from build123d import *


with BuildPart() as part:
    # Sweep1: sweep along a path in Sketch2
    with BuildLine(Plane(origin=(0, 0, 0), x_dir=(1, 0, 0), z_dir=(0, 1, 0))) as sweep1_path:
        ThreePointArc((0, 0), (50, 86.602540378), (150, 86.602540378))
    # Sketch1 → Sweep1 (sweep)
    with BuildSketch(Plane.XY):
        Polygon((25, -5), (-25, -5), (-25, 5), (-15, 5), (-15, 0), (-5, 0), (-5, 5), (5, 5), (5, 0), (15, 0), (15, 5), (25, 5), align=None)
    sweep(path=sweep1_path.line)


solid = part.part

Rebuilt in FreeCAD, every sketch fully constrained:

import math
import FreeCAD as App
import Part
import Sketcher
from FreeCAD import Vector
Q = App.Units.Quantity

doc = App.newDocument("Part")
params = doc.addObject("Spreadsheet::Sheet", "Params")
for row, (alias, value) in enumerate([
    ("sketch1_width", "50 mm"),
    ("sketch2_radius", "100 mm"),
], start=1):
    params.set(f"A{row}", alias)
    params.set(f"B{row}", "=" + value)
    params.setAlias(f"B{row}", alias)

body = doc.addObject("PartDesign::Body", "Body")

# Sketch on XY plane
sketch1 = body.newObject("Sketcher::SketchObject", "Sketch")
sketch1.AttachmentSupport = (doc.getObject("XY_Plane"), [""])
sketch1.MapMode = "FlatFace"
sketch1.addGeometry(Part.LineSegment(Vector(-25, -5, 0), Vector(25, -5, 0)), False)
sketch1.addGeometry(Part.LineSegment(Vector(25, -5, 0), Vector(25, 5, 0)), False)
sketch1.addGeometry(Part.LineSegment(Vector(25, 5, 0), Vector(15, 5, 0)), False)
sketch1.addGeometry(Part.LineSegment(Vector(15, 5, 0), Vector(15, 0, 0)), False)
sketch1.addGeometry(Part.LineSegment(Vector(15, 0, 0), Vector(5, 0, 0)), False)
sketch1.addGeometry(Part.LineSegment(Vector(5, 0, 0), Vector(5, 5, 0)), False)
sketch1.addGeometry(Part.LineSegment(Vector(5, 5, 0), Vector(-5, 5, 0)), False)
sketch1.addGeometry(Part.LineSegment(Vector(-5, 5, 0), Vector(-5, 0, 0)), False)
sketch1.addGeometry(Part.LineSegment(Vector(-5, 0, 0), Vector(-15, 0, 0)), False)
sketch1.addGeometry(Part.LineSegment(Vector(-15, 0, 0), Vector(-15, 5, 0)), False)
sketch1.addGeometry(Part.LineSegment(Vector(-15, 5, 0), Vector(-25, 5, 0)), False)
sketch1.addGeometry(Part.LineSegment(Vector(-25, 5, 0), Vector(-25, -5, 0)), False)
sketch1.addConstraint(Sketcher.Constraint("Coincident", 0, 2, 1, 1))
sketch1.addConstraint(Sketcher.Constraint("Coincident", 1, 2, 2, 1))
sketch1.addConstraint(Sketcher.Constraint("Coincident", 2, 2, 3, 1))
sketch1.addConstraint(Sketcher.Constraint("Coincident", 3, 2, 4, 1))
sketch1.addConstraint(Sketcher.Constraint("Coincident", 4, 2, 5, 1))
sketch1.addConstraint(Sketcher.Constraint("Coincident", 5, 2, 6, 1))
sketch1.addConstraint(Sketcher.Constraint("Coincident", 6, 2, 7, 1))
sketch1.addConstraint(Sketcher.Constraint("Coincident", 7, 2, 8, 1))
sketch1.addConstraint(Sketcher.Constraint("Coincident", 8, 2, 9, 1))
sketch1.addConstraint(Sketcher.Constraint("Coincident", 9, 2, 10, 1))
sketch1.addConstraint(Sketcher.Constraint("Coincident", 10, 2, 11, 1))
sketch1.addConstraint(Sketcher.Constraint("Coincident", 11, 2, 0, 1))
sketch1.addConstraint(Sketcher.Constraint("Horizontal", 0))
sketch1.addConstraint(Sketcher.Constraint("Vertical", 1))
sketch1.addConstraint(Sketcher.Constraint("Horizontal", 2))
sketch1.addConstraint(Sketcher.Constraint("Vertical", 3))
sketch1.addConstraint(Sketcher.Constraint("Horizontal", 4))
sketch1.addConstraint(Sketcher.Constraint("Vertical", 5))
sketch1.addConstraint(Sketcher.Constraint("Horizontal", 6))
sketch1.addConstraint(Sketcher.Constraint("Vertical", 7))
sketch1.addConstraint(Sketcher.Constraint("Horizontal", 8))
sketch1.addConstraint(Sketcher.Constraint("Vertical", 9))
sketch1.addConstraint(Sketcher.Constraint("Horizontal", 10))
sketch1.addConstraint(Sketcher.Constraint("Vertical", 11))
sketch1.addConstraint(Sketcher.Constraint("Symmetric", 4, 2, 7, 2, -1, 1))
sketch1.addConstraint(Sketcher.Constraint("Symmetric", 0, 2, 10, 2, -1, 1))
sketch1.addConstraint(Sketcher.Constraint("Symmetric", 3, 2, 8, 2, -2))
sketch1.addConstraint(Sketcher.Constraint("Horizontal", 2, 2, 5, 2))
sketch1.addConstraint(Sketcher.Constraint("Horizontal", 6, 2, 9, 2))
sketch1.addConstraint(Sketcher.Constraint("Equal", 2, 4))
sketch1.addConstraint(Sketcher.Constraint("Equal", 4, 6))
sketch1.addConstraint(Sketcher.Constraint("Equal", 10, 1))
sketch1.addConstraint(Sketcher.Constraint("DistanceX", 0, 1, 0, 2, Q("50 mm")))
sketch1.setExpression("Constraints[32]", "Params.sketch1_width")

# Sketch on XZ plane
sketch2 = body.newObject("Sketcher::SketchObject", "Sketch001")
sketch2.AttachmentSupport = (doc.getObject("XZ_Plane"), [""])
sketch2.MapMode = "FlatFace"
sketch2.addGeometry(Part.ArcOfCircle(Part.Circle(Vector(100, 0, 0), Vector(0, 0, 1), 100), math.radians(180), math.radians(300)), False)
sketch2.addConstraint(Sketcher.Constraint("Coincident", 0, 1, -1, 1))
sketch2.addConstraint(Sketcher.Constraint("PointOnObject", 0, 3, -1))
sketch2.addConstraint(Sketcher.Constraint("Radius", 0, Q("100 mm")))
sketch2.addConstraint(Sketcher.Constraint("DistanceX", -1, 1, 0, 2, Q("150 mm")))
sketch2.setExpression("Constraints[2]", "Params.sketch2_radius")
doc.recompute()

additivepipe = body.newObject("PartDesign::AdditivePipe", "AdditivePipe")
additivepipe.Profile = sketch1
additivepipe.Spine = (sketch2, ["Edge1"])

doc.recompute()
